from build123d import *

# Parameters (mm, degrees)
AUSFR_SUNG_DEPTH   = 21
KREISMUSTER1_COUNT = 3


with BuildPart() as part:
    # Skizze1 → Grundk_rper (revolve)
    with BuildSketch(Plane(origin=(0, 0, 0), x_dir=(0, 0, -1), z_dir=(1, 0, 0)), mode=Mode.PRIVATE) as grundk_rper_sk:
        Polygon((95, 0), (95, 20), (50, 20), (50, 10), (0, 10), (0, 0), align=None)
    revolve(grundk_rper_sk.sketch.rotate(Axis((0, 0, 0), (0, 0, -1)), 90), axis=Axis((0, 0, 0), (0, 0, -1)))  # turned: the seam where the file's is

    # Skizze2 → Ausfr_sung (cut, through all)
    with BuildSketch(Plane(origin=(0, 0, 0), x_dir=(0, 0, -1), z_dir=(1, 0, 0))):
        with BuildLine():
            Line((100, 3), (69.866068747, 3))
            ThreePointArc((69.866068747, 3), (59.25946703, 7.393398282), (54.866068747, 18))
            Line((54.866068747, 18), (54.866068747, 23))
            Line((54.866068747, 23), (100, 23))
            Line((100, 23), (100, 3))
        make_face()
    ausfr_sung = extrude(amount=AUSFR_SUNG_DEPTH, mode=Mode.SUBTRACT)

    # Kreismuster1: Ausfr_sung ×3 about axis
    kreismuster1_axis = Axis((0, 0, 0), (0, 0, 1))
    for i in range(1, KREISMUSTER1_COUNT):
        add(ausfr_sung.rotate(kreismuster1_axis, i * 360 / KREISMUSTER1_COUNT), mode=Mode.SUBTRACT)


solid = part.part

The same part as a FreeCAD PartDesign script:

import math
import FreeCAD as App
import Part
import Sketcher


def add_polygon(sketch, points):
    """Adds a closed chain of lines whose ends are joined by coincident constraints."""
    first, n = sketch.GeometryCount, len(points)
    for a, b in zip(points, points[1:] + points[:1]):
        sketch.addGeometry(Part.LineSegment(App.Vector(*a, 0), App.Vector(*b, 0)), False)
    for i in range(n):
        sketch.addConstraint(Sketcher.Constraint("Coincident", first + i, 2, first + (i + 1) % n, 1))

doc = App.newDocument("Part")
body = doc.addObject("PartDesign::Body", "Body")

# Sketch on YZ plane
sketch1 = body.newObject("Sketcher::SketchObject", "Sketch")
sketch1.AttachmentSupport = (doc.getObject("YZ_Plane"), [""])
sketch1.MapMode = "FlatFace"
add_polygon(sketch1, [(0, -95), (20, -95), (20, -50), (10, -50), (10, 0), (0, 0)])  # lines 0-5
sketch1.addConstraint([
    Sketcher.Constraint("Horizontal", 0),
    Sketcher.Constraint("Vertical", 1),
    Sketcher.Constraint("Horizontal", 2),
    Sketcher.Constraint("Vertical", 3),
    Sketcher.Constraint("Horizontal", 4),
    Sketcher.Constraint("Vertical", 5),
    Sketcher.Constraint("Coincident", 4, 2, -1, 1),
    Sketcher.Constraint("Equal", 2, 4),
    Sketcher.Constraint("DistanceX", 0, 1, 0, 2, 20.0),
    Sketcher.Constraint("DistanceY", 1, 1, 1, 2, 45.0),
    Sketcher.Constraint("DistanceY", 3, 1, 3, 2, 50.0),
])
revolution = body.newObject("PartDesign::Revolution", "Revolution")
revolution.Profile = sketch1
revolution.ReferenceAxis = (sketch1, ["V_Axis"])
revolution.Angle = 360

# Sketch on YZ plane
sketch2 = body.newObject("Sketcher::SketchObject", "Sketch001")
sketch2.AttachmentSupport = (doc.getObject("YZ_Plane"), [""])
sketch2.MapMode = "FlatFace"
sketch2.addGeometry([
    Part.LineSegment(App.Vector(3, -70, 0), App.Vector(3, -100, 0)),  # 0
    Part.LineSegment(App.Vector(3, -100, 0), App.Vector(23, -100, 0)),  # 1
    Part.LineSegment(App.Vector(23, -100, 0), App.Vector(23, -55, 0)),  # 2
    Part.LineSegment(App.Vector(23, -55, 0), App.Vector(18, -55, 0)),  # 3
    Part.ArcOfCircle(Part.Circle(App.Vector(18, -70, 0), App.Vector(0, 0, 1), 15), math.radians(90), math.radians(180)),  # 4
], False)
sketch2.addConstraint([
    Sketcher.Constraint("Coincident", 0, 2, 1, 1),
    Sketcher.Constraint("Coincident", 1, 2, 2, 1),
    Sketcher.Constraint("Coincident", 2, 2, 3, 1),
    Sketcher.Constraint("Tangent", 3, 2, 4, 1),
    Sketcher.Constraint("Tangent", 4, 2, 0, 1),
    Sketcher.Constraint("Vertical", 0),
    Sketcher.Constraint("Horizontal", 1),
    Sketcher.Constraint("Vertical", 2),
    Sketcher.Constraint("Horizontal", 3),
    Sketcher.Constraint("Radius", 4, 15.0),
    Sketcher.Constraint("DistanceX", 1, 1, 1, 2, 20.0),
    Sketcher.Constraint("DistanceX", -1, 1, 4, 3, 18.0),
    Sketcher.Constraint("DistanceY", 0, 2, -1, 1, 100.0),
    Sketcher.Constraint("DistanceY", 0, 2, 0, 1, 30.133931),
])
pocket1 = body.newObject("PartDesign::Pocket", "Pocket")
pocket1.Profile = sketch2
pocket1.Type = "ThroughAll"
pocket1.Reversed = True
doc.recompute()

polarpattern = body.newObject("PartDesign::PolarPattern", "PolarPattern")
polarpattern.Originals = [pocket1]
polarpattern.Axis = (doc.getObject("Z_Axis"), [""])
polarpattern.Angle = 360
polarpattern.Occurrences = 3
body.Tip = polarpattern

doc.recompute()
